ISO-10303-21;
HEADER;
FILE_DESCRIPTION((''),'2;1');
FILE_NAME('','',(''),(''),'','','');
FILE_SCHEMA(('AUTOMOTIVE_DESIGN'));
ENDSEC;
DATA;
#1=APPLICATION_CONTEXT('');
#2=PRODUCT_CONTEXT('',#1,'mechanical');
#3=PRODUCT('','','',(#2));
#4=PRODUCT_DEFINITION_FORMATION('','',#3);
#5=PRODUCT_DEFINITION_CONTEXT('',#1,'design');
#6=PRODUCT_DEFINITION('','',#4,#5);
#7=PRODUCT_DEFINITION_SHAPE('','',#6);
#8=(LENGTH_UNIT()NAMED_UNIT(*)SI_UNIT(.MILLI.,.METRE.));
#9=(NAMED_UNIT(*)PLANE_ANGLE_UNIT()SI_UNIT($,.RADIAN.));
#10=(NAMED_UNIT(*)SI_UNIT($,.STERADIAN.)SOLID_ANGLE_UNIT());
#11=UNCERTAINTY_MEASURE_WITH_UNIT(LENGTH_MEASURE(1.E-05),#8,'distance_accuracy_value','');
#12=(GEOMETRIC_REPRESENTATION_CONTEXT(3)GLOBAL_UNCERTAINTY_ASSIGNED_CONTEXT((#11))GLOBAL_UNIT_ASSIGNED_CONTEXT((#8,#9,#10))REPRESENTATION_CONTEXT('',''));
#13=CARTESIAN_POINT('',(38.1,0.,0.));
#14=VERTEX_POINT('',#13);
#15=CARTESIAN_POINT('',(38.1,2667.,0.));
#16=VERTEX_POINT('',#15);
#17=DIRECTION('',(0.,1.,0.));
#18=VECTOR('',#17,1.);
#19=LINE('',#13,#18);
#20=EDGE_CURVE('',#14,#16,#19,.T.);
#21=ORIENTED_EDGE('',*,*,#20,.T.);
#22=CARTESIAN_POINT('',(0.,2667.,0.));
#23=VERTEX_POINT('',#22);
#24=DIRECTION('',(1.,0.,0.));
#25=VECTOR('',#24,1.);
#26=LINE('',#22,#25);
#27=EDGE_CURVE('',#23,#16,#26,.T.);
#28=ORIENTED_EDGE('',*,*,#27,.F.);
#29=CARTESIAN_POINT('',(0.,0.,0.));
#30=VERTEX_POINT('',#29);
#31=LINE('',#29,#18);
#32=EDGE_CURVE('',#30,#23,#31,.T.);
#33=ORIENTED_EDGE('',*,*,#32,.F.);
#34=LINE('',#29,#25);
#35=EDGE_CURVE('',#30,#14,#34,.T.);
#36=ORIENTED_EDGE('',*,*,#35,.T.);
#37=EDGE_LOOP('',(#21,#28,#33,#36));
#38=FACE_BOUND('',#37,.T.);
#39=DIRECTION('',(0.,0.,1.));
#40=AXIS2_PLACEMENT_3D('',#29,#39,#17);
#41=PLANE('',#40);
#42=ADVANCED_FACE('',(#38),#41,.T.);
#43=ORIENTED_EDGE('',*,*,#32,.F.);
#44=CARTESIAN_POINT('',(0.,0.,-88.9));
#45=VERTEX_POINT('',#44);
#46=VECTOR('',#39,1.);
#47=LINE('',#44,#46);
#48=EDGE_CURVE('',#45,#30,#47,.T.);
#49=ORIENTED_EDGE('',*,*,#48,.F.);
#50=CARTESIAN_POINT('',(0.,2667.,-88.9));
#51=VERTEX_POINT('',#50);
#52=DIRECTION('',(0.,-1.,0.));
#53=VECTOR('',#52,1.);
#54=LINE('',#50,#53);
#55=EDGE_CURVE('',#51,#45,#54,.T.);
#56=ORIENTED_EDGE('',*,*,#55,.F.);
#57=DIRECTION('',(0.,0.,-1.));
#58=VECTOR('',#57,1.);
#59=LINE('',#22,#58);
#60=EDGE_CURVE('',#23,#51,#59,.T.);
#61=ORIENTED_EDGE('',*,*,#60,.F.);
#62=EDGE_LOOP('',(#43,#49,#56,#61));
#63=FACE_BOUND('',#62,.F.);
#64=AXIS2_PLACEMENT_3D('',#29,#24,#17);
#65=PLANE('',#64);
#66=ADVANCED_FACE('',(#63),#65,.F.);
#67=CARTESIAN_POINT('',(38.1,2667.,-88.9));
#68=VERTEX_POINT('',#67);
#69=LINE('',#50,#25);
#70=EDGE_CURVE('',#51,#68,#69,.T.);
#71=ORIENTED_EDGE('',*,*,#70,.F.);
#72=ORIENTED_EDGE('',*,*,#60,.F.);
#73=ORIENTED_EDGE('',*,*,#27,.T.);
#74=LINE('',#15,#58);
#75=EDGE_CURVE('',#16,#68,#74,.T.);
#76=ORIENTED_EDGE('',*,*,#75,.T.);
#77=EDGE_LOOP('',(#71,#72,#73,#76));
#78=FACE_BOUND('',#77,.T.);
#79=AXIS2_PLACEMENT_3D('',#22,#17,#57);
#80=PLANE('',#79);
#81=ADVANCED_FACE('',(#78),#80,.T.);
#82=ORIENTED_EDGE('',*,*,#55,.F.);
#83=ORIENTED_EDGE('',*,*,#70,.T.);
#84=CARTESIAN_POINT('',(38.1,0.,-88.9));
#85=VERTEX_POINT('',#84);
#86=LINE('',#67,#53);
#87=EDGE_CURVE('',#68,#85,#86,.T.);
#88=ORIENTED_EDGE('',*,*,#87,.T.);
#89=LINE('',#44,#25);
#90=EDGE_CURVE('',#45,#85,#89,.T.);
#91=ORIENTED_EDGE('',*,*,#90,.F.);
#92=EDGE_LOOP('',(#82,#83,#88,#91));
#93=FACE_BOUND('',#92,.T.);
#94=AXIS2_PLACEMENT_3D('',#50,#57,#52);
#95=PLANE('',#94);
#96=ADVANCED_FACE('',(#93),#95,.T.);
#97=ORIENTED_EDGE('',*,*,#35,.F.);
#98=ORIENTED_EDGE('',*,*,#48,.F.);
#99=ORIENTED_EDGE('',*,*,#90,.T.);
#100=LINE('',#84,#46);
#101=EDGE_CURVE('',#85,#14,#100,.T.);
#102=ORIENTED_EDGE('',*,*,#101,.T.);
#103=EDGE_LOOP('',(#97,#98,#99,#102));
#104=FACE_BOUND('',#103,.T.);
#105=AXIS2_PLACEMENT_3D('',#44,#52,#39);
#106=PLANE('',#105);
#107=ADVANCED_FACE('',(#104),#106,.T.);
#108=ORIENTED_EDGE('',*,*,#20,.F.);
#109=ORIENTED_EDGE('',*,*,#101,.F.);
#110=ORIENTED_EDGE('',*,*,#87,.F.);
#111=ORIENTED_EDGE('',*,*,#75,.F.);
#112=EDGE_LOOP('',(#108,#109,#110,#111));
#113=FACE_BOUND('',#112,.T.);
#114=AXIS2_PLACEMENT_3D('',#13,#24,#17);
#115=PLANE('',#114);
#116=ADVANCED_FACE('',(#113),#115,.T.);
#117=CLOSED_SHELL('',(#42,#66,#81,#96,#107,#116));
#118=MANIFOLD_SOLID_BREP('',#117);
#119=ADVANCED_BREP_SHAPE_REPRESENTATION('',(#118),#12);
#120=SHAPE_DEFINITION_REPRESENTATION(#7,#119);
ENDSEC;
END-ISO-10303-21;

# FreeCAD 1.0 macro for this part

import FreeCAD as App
import Part
import Sketcher
from FreeCAD import Vector
Q = App.Units.Quantity


def add_polygon(sketch, points):
    """Adds a closed chain of lines whose ends are joined by coincident constraints."""
    first, n = sketch.GeometryCount, len(points)
    for a, b in zip(points, points[1:] + points[:1]):
        sketch.addGeometry(Part.LineSegment(App.Vector(*a, 0), App.Vector(*b, 0)), False)
    for i in range(n):
        sketch.addConstraint(Sketcher.Constraint("Coincident", first + i, 2, first + (i + 1) % n, 1))

doc = App.newDocument("Part")
params = doc.addObject("Spreadsheet::Sheet", "Params")
for row, (alias, value) in enumerate([
    ("sketch1_width", "105 in"),
    ("sketch1_height", "3.5 in"),
    ("pad1_length", "1.5 in"),
], start=1):
    params.set(f"A{row}", alias)
    params.set(f"B{row}", "=" + value)
    params.setAlias(f"B{row}", alias)

body = doc.addObject("PartDesign::Body", "Body")

sketch1 = doc.addObject("Sketcher::SketchObject", "Sketch")
body.addObject(sketch1)
sketch1.AttachmentSupport = (doc.YZ_Plane, [""])
sketch1.MapMode = "FlatFace"
add_polygon(sketch1, [(2667, 0), (0, 0), (0, -89), (2667, -89)])
sketch1.addConstraint([
    Sketcher.Constraint("Horizontal", 0),
    Sketcher.Constraint("Vertical", 1),
    Sketcher.Constraint("Horizontal", 2),
    Sketcher.Constraint("Vertical", 3),
    Sketcher.Constraint("Coincident", 0, 2, -1, 1),
    Sketcher.Constraint("DistanceX", 0, 2, 0, 1, Q("105 in")),
    Sketcher.Constraint("DistanceY", 1, 2, 1, 1, Q("3.5 in")),
])
sketch1.setExpression("Constraints[9]", "Params.sketch1_width")
sketch1.setExpression("Constraints[10]", "Params.sketch1_height")
pad1 = doc.addObject("PartDesign::Pad", "Pad")
body.addObject(pad1)
pad1.Profile = sketch1
pad1.setExpression("Length", "Params.pad1_length")

doc.recompute()
